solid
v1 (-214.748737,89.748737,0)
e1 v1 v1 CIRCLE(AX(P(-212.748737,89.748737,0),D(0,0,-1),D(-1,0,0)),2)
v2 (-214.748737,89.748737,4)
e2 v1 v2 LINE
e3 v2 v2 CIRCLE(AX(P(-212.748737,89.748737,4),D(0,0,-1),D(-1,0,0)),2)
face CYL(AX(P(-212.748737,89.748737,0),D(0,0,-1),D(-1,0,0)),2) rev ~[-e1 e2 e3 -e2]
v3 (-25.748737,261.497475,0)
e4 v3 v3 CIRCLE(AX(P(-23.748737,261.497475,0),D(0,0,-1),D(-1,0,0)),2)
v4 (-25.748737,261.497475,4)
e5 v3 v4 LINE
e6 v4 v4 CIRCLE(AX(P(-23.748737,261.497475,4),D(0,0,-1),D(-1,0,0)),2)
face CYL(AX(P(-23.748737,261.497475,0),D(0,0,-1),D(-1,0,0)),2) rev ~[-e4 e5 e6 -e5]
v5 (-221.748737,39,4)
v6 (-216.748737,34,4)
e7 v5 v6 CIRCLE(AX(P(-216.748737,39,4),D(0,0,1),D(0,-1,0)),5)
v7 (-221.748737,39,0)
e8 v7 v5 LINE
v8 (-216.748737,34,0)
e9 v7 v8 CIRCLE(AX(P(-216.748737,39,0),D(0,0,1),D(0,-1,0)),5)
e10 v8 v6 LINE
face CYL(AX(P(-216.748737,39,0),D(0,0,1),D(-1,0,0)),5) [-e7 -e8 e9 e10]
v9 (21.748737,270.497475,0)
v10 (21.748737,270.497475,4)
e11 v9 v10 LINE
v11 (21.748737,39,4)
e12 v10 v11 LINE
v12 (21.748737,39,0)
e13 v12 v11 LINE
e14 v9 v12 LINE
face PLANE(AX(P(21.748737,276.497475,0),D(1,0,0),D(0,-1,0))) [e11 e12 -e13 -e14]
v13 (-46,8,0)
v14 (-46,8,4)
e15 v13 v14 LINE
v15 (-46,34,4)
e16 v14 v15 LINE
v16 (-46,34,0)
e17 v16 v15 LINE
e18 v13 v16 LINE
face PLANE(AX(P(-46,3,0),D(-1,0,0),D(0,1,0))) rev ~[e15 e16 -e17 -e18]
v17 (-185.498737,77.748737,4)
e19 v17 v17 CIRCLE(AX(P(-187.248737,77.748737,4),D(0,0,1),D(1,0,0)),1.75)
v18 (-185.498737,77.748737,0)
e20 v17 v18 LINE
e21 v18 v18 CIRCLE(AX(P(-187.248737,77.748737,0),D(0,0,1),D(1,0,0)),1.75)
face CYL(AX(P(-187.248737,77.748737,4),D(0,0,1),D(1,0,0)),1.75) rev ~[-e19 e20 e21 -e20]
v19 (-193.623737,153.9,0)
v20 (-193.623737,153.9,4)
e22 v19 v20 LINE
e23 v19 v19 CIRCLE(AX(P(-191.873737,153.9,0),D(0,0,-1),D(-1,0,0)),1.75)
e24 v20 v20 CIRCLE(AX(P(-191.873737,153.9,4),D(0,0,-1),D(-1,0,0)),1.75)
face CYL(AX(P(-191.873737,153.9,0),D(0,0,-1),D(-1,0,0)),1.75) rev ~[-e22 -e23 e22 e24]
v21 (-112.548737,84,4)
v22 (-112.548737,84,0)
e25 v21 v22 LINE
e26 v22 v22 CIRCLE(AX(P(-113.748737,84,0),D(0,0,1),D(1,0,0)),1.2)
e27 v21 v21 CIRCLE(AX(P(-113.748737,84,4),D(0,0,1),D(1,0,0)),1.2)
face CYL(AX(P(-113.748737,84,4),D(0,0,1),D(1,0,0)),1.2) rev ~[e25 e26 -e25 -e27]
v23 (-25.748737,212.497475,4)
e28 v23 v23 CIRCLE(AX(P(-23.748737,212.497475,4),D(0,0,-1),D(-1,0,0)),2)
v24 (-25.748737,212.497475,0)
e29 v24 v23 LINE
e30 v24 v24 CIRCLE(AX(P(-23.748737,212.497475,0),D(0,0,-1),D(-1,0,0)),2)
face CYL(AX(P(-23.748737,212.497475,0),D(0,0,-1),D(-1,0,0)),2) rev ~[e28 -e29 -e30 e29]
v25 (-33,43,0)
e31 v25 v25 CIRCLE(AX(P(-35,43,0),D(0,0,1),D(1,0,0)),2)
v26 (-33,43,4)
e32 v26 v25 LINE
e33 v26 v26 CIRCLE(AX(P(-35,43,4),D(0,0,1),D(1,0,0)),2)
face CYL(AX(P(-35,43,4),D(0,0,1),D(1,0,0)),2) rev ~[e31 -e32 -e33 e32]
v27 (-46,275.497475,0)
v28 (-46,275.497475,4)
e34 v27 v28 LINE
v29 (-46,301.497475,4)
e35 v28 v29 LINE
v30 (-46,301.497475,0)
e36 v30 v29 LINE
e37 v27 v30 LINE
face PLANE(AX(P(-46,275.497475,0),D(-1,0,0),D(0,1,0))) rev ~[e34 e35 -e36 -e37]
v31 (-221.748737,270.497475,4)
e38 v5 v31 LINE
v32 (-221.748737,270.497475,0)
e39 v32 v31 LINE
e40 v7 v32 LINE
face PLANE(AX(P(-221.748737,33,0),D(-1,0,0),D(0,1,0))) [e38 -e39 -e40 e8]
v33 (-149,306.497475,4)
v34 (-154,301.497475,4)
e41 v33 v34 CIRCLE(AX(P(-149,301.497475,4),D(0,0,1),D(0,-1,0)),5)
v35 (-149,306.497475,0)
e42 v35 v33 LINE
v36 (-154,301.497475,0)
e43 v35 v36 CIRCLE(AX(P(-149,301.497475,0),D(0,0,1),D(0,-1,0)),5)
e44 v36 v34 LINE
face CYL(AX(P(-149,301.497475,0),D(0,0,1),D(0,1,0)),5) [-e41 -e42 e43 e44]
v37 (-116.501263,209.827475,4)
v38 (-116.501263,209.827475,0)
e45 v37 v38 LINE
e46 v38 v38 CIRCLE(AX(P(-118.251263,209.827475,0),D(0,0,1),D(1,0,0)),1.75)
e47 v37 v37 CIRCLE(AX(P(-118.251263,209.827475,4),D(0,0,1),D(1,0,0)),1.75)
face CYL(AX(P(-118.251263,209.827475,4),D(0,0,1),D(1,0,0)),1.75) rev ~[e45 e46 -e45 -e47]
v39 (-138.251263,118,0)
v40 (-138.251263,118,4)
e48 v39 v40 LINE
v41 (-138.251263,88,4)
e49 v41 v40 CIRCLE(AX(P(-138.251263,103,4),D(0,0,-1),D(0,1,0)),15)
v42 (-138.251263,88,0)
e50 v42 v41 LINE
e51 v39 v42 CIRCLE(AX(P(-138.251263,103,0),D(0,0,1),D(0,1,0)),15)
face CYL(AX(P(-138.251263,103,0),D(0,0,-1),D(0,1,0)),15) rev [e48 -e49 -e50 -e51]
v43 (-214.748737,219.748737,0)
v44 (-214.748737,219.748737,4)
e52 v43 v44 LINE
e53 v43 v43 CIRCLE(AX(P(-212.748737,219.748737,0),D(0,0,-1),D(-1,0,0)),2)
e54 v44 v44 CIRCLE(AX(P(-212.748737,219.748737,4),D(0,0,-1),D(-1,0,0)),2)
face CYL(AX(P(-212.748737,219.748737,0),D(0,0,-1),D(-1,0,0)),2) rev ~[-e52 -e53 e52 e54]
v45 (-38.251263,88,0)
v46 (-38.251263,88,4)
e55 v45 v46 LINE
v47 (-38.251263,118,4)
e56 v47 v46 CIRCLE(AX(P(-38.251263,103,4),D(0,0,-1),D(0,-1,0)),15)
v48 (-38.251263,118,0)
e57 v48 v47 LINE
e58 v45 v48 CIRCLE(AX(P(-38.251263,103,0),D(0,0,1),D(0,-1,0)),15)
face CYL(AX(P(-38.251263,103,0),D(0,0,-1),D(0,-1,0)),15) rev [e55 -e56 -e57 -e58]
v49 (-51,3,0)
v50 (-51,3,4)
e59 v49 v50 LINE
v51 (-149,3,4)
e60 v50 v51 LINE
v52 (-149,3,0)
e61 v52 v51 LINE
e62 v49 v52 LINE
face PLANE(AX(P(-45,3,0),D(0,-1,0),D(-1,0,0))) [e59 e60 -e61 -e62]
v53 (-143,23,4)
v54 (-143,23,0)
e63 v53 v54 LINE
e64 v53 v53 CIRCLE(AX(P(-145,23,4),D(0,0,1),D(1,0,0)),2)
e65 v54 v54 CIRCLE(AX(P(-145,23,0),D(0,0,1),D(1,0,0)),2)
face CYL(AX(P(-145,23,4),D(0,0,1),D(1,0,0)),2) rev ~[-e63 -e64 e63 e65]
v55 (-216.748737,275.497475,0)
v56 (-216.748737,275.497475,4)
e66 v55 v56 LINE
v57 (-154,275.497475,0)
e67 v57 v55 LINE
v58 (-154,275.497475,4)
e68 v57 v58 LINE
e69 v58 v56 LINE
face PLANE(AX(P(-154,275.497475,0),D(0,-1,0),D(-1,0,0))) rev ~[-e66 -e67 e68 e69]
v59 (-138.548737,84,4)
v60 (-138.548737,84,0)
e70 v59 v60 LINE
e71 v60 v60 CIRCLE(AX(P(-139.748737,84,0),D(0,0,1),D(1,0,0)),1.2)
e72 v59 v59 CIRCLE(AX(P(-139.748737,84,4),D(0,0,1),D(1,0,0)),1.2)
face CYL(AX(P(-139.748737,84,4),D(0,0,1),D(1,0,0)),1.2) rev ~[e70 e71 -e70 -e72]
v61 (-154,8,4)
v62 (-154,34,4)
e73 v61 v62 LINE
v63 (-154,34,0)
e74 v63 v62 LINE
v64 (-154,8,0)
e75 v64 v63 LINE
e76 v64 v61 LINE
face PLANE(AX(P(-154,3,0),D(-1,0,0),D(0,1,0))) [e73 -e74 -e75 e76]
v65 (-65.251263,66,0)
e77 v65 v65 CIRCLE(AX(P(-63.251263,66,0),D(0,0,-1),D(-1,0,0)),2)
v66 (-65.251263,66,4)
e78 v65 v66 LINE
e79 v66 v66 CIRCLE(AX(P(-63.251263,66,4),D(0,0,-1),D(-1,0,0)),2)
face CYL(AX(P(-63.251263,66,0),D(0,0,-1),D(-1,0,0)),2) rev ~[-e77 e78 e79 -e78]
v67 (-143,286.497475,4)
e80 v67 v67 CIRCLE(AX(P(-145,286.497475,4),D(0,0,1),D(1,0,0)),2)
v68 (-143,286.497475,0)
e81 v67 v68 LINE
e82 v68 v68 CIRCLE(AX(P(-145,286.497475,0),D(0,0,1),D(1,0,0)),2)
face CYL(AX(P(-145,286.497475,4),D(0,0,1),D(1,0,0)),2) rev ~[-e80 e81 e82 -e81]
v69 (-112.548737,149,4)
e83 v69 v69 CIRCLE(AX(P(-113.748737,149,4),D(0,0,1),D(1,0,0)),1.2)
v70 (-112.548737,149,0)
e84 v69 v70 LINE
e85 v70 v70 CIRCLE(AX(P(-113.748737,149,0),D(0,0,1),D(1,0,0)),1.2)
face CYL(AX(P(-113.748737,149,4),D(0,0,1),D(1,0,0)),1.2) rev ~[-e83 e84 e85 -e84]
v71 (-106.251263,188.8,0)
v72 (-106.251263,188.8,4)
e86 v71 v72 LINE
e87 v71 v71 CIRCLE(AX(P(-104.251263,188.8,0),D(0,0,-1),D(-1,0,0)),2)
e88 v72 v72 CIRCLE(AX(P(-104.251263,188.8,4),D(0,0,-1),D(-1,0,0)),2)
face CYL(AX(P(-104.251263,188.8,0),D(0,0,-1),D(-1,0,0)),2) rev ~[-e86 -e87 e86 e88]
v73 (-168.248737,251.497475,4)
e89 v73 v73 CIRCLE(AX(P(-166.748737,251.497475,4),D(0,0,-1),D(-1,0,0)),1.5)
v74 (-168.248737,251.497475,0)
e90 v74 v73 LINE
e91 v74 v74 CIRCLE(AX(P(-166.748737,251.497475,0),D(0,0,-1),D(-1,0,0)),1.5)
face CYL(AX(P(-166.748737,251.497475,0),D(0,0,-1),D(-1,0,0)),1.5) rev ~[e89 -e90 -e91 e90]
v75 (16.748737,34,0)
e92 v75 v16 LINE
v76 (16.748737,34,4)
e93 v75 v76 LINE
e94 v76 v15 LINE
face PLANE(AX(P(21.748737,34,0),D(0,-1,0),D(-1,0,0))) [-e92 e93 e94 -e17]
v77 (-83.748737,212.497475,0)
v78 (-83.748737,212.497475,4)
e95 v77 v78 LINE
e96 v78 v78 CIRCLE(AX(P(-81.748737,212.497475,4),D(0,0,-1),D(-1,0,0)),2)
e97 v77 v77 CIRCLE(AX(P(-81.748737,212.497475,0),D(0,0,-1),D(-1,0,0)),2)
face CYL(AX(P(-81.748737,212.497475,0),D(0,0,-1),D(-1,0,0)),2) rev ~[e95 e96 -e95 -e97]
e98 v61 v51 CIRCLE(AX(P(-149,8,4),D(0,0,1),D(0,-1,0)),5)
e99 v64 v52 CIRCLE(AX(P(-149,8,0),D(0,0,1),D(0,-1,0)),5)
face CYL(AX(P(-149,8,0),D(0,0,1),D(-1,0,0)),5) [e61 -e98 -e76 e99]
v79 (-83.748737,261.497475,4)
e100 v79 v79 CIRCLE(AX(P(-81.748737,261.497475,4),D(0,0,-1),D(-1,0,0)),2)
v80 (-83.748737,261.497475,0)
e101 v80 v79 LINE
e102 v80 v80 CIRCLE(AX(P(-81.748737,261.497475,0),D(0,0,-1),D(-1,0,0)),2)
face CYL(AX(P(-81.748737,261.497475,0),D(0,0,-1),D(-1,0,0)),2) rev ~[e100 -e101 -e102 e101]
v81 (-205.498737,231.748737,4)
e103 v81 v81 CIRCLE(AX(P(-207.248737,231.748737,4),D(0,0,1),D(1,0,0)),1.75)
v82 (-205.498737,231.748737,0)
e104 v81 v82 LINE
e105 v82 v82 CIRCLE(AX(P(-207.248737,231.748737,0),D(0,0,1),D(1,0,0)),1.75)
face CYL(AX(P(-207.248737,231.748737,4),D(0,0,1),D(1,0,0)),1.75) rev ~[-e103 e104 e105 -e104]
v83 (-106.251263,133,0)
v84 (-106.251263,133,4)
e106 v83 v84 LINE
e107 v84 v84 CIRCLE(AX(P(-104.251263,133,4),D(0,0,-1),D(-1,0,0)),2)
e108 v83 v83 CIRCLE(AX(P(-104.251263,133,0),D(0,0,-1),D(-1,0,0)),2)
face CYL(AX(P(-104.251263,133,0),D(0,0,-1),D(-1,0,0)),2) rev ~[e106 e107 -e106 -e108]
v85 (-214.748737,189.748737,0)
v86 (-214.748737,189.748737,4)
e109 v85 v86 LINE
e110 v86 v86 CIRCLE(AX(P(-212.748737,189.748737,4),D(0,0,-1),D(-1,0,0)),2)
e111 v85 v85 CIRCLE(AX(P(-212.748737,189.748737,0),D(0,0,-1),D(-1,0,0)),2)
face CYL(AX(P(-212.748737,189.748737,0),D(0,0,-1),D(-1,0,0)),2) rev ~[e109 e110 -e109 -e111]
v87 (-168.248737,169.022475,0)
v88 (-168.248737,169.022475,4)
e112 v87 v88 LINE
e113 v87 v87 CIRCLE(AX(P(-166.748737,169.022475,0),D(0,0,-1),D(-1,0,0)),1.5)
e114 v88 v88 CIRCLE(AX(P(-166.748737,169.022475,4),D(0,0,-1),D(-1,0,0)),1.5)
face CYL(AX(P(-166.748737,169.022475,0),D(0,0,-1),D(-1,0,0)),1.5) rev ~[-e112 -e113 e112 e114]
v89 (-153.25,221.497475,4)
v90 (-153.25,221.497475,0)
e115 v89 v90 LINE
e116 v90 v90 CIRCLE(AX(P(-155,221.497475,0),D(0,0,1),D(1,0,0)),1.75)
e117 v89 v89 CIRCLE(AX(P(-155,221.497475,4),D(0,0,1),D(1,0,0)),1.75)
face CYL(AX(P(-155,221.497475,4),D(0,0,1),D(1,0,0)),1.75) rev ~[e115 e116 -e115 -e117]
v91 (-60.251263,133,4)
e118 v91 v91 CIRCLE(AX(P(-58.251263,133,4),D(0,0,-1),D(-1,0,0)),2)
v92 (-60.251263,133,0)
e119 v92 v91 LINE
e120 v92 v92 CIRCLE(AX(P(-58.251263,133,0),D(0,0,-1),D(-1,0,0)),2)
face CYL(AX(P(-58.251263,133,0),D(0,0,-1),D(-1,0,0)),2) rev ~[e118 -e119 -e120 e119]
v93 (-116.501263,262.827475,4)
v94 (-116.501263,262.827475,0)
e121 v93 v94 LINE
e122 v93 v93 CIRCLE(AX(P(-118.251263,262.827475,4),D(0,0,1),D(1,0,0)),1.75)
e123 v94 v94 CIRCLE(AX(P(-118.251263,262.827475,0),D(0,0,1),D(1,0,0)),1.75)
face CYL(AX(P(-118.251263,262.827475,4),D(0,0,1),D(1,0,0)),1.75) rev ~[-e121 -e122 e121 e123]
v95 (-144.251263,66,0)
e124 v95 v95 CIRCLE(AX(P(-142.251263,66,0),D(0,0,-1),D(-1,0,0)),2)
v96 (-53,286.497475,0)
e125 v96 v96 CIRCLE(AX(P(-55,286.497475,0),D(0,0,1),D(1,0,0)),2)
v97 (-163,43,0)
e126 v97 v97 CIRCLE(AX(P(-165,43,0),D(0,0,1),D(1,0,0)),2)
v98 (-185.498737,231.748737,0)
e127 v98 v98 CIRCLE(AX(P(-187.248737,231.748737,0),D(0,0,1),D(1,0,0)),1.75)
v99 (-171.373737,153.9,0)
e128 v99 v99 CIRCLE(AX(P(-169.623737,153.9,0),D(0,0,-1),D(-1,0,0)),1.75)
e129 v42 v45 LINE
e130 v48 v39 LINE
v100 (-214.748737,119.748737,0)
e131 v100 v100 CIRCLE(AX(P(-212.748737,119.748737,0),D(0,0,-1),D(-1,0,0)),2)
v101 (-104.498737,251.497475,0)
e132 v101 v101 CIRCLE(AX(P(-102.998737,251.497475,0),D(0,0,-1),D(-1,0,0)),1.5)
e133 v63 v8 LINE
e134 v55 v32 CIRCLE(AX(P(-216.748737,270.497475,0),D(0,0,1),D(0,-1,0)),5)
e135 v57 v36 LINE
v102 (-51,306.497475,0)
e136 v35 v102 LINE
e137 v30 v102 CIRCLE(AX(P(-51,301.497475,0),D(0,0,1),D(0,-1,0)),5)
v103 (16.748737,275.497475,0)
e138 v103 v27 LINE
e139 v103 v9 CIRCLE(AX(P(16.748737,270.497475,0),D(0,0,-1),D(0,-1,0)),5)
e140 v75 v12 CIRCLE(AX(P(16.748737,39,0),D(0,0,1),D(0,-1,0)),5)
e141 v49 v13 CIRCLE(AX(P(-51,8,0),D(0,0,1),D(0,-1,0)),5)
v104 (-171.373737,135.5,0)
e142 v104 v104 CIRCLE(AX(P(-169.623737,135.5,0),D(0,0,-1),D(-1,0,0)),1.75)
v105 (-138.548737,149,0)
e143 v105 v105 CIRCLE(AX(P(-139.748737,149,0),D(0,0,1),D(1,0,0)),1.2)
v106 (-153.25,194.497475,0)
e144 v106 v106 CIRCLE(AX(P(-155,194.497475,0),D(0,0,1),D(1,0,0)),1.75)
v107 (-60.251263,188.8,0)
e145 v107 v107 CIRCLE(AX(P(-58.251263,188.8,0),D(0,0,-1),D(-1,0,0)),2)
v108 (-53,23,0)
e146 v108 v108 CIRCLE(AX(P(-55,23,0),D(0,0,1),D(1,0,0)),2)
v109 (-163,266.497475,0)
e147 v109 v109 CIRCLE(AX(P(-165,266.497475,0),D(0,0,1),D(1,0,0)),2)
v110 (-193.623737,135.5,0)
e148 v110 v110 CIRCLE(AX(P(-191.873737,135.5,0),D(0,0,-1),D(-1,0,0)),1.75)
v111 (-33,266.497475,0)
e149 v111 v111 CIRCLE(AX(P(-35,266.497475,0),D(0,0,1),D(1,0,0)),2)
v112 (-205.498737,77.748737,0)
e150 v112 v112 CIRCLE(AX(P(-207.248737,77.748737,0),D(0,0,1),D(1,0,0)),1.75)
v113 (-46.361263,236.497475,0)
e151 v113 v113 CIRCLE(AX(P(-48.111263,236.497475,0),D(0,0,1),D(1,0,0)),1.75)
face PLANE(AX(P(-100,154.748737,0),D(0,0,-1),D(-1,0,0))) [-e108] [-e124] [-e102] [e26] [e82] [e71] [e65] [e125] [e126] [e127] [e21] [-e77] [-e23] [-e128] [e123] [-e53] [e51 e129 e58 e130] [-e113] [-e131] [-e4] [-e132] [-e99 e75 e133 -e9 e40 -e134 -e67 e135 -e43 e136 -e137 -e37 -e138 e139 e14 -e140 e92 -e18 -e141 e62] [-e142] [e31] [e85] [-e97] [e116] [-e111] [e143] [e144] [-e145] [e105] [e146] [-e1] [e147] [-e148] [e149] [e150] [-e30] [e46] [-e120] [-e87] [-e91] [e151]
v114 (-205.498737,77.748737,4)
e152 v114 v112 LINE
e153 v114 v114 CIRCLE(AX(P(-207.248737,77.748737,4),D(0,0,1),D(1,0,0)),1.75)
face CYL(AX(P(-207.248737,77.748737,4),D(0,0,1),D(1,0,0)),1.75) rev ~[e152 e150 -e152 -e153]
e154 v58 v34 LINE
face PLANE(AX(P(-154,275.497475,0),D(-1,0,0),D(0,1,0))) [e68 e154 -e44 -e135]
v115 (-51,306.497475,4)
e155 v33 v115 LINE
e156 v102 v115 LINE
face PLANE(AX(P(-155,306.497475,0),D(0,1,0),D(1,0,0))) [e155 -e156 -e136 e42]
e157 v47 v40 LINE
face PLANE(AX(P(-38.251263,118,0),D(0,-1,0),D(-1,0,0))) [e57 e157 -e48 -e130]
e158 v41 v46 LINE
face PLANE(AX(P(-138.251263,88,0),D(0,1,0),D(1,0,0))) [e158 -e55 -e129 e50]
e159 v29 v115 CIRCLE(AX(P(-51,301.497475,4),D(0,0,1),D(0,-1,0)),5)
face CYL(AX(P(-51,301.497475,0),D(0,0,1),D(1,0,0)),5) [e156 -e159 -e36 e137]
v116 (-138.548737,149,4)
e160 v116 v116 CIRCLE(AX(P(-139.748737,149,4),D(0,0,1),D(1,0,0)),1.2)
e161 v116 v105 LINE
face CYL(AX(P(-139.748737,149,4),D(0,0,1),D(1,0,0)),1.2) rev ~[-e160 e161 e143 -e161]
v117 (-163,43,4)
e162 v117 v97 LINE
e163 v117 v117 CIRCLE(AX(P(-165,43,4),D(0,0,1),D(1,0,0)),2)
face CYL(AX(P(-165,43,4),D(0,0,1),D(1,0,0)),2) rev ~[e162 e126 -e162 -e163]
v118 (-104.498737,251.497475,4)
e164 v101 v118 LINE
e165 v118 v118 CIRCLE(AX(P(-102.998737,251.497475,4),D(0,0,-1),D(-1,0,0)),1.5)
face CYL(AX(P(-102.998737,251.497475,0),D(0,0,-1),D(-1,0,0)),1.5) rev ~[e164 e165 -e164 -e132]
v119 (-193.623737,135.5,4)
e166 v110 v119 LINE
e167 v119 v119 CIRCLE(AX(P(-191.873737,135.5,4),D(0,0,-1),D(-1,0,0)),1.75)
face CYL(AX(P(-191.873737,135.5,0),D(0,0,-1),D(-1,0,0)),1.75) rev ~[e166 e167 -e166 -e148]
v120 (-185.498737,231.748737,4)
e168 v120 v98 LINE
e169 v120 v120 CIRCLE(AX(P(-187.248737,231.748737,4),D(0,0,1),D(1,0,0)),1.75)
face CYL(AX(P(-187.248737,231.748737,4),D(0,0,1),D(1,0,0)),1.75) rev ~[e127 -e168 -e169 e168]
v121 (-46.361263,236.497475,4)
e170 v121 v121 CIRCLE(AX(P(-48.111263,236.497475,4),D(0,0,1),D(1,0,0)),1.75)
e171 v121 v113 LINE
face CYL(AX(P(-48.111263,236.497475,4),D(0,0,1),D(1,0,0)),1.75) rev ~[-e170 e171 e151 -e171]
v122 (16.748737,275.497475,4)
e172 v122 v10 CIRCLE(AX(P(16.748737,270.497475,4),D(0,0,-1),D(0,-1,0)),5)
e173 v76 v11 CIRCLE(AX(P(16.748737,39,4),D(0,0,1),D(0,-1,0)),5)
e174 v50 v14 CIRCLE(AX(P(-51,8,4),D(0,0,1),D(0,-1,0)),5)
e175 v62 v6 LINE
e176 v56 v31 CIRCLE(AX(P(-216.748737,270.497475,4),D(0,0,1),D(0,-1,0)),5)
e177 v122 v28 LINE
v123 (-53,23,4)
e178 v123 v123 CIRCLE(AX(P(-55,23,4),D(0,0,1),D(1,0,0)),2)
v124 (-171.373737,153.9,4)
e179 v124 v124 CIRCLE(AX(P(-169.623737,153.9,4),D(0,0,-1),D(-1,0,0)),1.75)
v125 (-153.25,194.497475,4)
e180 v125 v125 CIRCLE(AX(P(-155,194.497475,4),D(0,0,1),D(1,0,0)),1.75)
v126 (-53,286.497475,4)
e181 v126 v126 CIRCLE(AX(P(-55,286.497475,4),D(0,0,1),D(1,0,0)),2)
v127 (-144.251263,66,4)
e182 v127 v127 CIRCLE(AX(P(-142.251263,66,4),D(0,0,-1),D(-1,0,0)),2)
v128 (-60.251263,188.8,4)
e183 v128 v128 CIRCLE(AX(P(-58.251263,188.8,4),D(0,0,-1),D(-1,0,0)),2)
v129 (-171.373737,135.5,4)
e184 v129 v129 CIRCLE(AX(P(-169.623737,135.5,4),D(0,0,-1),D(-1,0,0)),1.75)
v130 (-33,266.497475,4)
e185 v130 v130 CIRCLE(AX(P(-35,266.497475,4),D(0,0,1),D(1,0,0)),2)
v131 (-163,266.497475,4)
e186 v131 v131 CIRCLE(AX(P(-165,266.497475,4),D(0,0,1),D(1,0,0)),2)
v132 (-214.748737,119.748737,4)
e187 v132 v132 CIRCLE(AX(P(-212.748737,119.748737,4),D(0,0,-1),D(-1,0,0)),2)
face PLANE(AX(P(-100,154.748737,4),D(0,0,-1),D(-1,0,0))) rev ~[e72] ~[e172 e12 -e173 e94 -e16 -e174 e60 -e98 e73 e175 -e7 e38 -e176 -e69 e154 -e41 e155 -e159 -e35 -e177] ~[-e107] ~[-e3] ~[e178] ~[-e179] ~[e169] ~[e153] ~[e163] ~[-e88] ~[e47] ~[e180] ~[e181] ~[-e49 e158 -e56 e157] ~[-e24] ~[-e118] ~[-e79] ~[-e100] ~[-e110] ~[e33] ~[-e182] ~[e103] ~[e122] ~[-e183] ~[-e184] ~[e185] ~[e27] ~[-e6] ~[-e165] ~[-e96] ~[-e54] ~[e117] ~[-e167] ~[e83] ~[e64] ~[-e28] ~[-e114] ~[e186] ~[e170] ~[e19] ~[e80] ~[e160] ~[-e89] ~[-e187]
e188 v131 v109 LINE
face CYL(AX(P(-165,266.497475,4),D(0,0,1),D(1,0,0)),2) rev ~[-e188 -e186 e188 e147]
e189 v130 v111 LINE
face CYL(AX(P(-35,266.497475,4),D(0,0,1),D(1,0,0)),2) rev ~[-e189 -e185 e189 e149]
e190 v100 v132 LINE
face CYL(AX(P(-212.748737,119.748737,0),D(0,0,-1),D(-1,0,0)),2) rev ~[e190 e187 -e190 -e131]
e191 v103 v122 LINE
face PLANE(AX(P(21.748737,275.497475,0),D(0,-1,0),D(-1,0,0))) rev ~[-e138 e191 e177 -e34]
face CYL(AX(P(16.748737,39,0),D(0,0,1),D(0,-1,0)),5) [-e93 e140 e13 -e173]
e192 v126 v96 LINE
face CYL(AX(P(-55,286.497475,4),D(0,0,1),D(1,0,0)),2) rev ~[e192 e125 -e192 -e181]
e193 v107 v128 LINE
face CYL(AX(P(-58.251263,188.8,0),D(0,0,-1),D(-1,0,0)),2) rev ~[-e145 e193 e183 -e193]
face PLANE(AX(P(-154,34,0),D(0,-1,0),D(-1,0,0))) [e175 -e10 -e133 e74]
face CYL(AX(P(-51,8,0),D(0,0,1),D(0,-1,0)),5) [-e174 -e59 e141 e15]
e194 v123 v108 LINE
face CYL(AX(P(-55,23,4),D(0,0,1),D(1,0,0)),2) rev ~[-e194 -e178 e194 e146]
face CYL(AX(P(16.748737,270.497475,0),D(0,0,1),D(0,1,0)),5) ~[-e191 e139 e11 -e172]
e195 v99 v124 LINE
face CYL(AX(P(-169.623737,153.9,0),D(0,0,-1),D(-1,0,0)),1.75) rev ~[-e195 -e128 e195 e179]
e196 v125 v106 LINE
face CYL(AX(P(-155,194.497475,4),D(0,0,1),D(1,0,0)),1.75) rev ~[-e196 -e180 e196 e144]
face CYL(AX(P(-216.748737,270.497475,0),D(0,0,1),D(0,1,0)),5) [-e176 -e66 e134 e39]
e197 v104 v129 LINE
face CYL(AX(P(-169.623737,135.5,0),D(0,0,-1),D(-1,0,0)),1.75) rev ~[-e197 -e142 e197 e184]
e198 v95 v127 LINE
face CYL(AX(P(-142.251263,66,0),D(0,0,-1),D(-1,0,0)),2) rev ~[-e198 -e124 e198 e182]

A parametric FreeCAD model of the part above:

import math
import FreeCAD as App
import Part
import Sketcher
from FreeCAD import Vector
Q = App.Units.Quantity


def edges_at(feature, points):
    """Names of the edges that pass closest to the given points."""
    edges = feature.Shape.Edges
    near = lambda p: min(range(len(edges)), key=lambda i: edges[i].distToShape(Part.Vertex(*p))[0])
    return sorted({f"Edge{near(p) + 1}" for p in points})


def add_polygon(sketch, points):
    """Adds a closed chain of lines whose ends are joined by coincident constraints."""
    first, n = sketch.GeometryCount, len(points)
    for a, b in zip(points, points[1:] + points[:1]):
        sketch.addGeometry(Part.LineSegment(App.Vector(*a, 0), App.Vector(*b, 0)), False)
    for i in range(n):
        sketch.addConstraint(Sketcher.Constraint("Coincident", first + i, 2, first + (i + 1) % n, 1))

doc = App.newDocument("Part")
params = doc.addObject("Spreadsheet::Sheet", "Params")
for row, (alias, value) in enumerate([
    ("sketch1_width", "200 mm"),
    ("sketch1_height", "260 mm"),
    ("sketch1_length", "35 mm"),
    ("pad1_length", "4 mm"),
    ("fillet_radius", "3 mm"),
    ("sketch2_width", "110 mm"),
    ("sketch2_height", "30 mm"),
    ("sketch3_diameter", "3.5 mm"),
    ("sketch4_diameter", "4 mm"),
    ("sketch5_diameter", "4 mm"),
    ("sketch6_diameter", "3 mm"),
    ("sketch7_diameter", "4 mm"),
    ("sketch8_diameter", "3.5 mm"),
    ("sketch9_diameter", "4 mm"),
    ("sketch10_radius", "15 mm"),
    ("sketch10_width", "100 mm"),
    ("sketch11_diameter", "3.5 mm"),
    ("sketch12_diameter", "2.4 mm"),
    ("sketch13_diameter", "3.5 mm"),
    ("pocket12_length", "5 mm"),
    ("sketch14_diameter", "4 mm"),
    ("sketch15_height", "31 mm"),
    ("fillet2_radius", "5 mm"),
], start=1):
    params.set(f"A{row}", alias)
    params.set(f"B{row}", "=" + value)
    params.setAlias(f"B{row}", alias)

body = doc.addObject("PartDesign::Body", "Body")

sketch1 = body.newObject("Sketcher::SketchObject", "Sketch")
sketch1.AttachmentSupport = (doc.getObject("XY_Plane"), [""])
sketch1.MapMode = "FlatFace"
add_polygon(sketch1, [(-200, 0), (0, 0), (25, 25), (25, 285), (0, 309), (-200, 309), (-225, 285), (-225, 25)])
sketch1.addConstraint(Sketcher.Constraint("Horizontal", 0))
sketch1.addConstraint(Sketcher.Constraint("Vertical", 2))
sketch1.addConstraint(Sketcher.Constraint("Horizontal", 4))
sketch1.addConstraint(Sketcher.Constraint("Vertical", 6))
sketch1.addConstraint(Sketcher.Constraint("Coincident", 0, 2, -1, 1))
sketch1.addConstraint(Sketcher.Constraint("PointOnObject", 3, 2, -2))
sketch1.addConstraint(Sketcher.Constraint("Perpendicular", 1, 3))
sketch1.addConstraint(Sketcher.Constraint("Perpendicular", 3, 5))
sketch1.addConstraint(Sketcher.Constraint("Perpendicular", 5, 7))
sketch1.addConstraint(Sketcher.Constraint("Horizontal", 2, 2, 5, 2))
sketch1.addConstraint(Sketcher.Constraint("Horizontal", 1, 2, 6, 2))
sketch1.addConstraint(Sketcher.Constraint("Vertical", 4, 2, 7, 2))
sketch1.addConstraint(Sketcher.Constraint("DistanceX", 0, 1, 0, 2, Q("200 mm")))
sketch1.addConstraint(Sketcher.Constraint("DistanceY", 2, 1, 2, 2, Q("260 mm")))
sketch1.addConstraint(Sketcher.Constraint("Distance", 1, Q("35 mm")))
sketch1.setExpression("Constraints[20]", "Params.sketch1_width")
sketch1.setExpression("Constraints[21]", "Params.sketch1_height")
sketch1.setExpression("Constraints[22]", "Params.sketch1_length")
pad1 = body.newObject("PartDesign::Pad", "Pad")
pad1.Profile = sketch1
pad1.setExpression("Length", "Params.pad1_length")
doc.recompute()

fillet = body.newObject("PartDesign::Fillet", "Fillet")
fillet.Base = (pad1, edges_at(pad1, [
    (0, 0, 2),
    (-200, 0, 2),
    (-224.749, 24.749, 2),
    (-224.749, 284.749, 2),
    (-200, 309.497, 2),
    (0, 309.497, 2),
    (24.749, 284.749, 2),
    (24.749, 24.749, 2),
]))
fillet.setExpression("Radius", "Params.fillet_radius")

sketch2 = body.newObject("Sketcher::SketchObject", "Sketch001")
sketch2.AttachmentSupport = (doc.getObject("XY_Plane"), [""])
sketch2.MapMode = "FlatFace"
add_polygon(sketch2, [(25, 0), (-225, 0), (-225, 309), (25, 309)])
add_polygon(sketch2, [(-45, 33), (22, 33), (22, 276), (-45, 276), (-45, 306), (-155, 306), (-155, 276), (-222, 276), (-222, 33), (-155, 33), (-155, 3), (-45, 3)])
sketch2.addConstraint(Sketcher.Constraint("Horizontal", 0))
sketch2.addConstraint(Sketcher.Constraint("Vertical", 1))
sketch2.addConstraint(Sketcher.Constraint("Horizontal", 2))
sketch2.addConstraint(Sketcher.Constraint("Vertical", 3))
sketch2.addConstraint(Sketcher.Constraint("Horizontal", 4))
sketch2.addConstraint(Sketcher.Constraint("Vertical", 5))
sketch2.addConstraint(Sketcher.Constraint("Horizontal", 6))
sketch2.addConstraint(Sketcher.Constraint("Vertical", 7))
sketch2.addConstraint(Sketcher.Constraint("Horizontal", 8))
sketch2.addConstraint(Sketcher.Constraint("Vertical", 9))
sketch2.addConstraint(Sketcher.Constraint("Horizontal", 10))
sketch2.addConstraint(Sketcher.Constraint("Vertical", 11))
sketch2.addConstraint(Sketcher.Constraint("Horizontal", 12))
sketch2.addConstraint(Sketcher.Constraint("Vertical", 13))
sketch2.addConstraint(Sketcher.Constraint("Horizontal", 14))
sketch2.addConstraint(Sketcher.Constraint("Vertical", 15))
sketch2.addConstraint(Sketcher.Constraint("PointOnObject", 0, 2, -1))
sketch2.addConstraint(Sketcher.Constraint("Horizontal", 6, 2, 9, 2))
sketch2.addConstraint(Sketcher.Constraint("Horizontal", 4, 2, 11, 2))
sketch2.addConstraint(Sketcher.Constraint("Vertical", 9, 2, 12, 2))
sketch2.addConstraint(Sketcher.Constraint("Vertical", 7, 2, 14, 2))
sketch2.addConstraint(Sketcher.Constraint("Equal", 6, 10))
sketch2.addConstraint(Sketcher.Constraint("Equal", 9, 13))
sketch2.addConstraint(Sketcher.Constraint("DistanceX", 8, 2, 8, 1, Q("110 mm")))
sketch2.addConstraint(Sketcher.Constraint("DistanceY", 7, 1, 7, 2, Q("30 mm")))
sketch2.addConstraint(Sketcher.Constraint("DistanceY", -1, 1, 4, 2, Q("33 mm")))
sketch2.addConstraint(Sketcher.Constraint("DistanceX", 6, 2, -1, 1, Q("45 mm")))
sketch2.addConstraint(Sketcher.Constraint("DistanceX", 4, 2, 3, 2, Q("3 mm")))
sketch2.addConstraint(Sketcher.Constraint("DistanceY", 5, 2, 2, 2, Q("33 mm")))
sketch2.addConstraint(Sketcher.Constraint("DistanceX", 1, 2, 10, 2, Q("3 mm")))
sketch2.addConstraint(Sketcher.Constraint("DistanceX", 0, 2, 0, 1, Q("249.497475 mm")))
sketch2.addConstraint(Sketcher.Constraint("DistanceY", 1, 1, 1, 2, Q("309.497475 mm")))
sketch2.setExpression("Constraints[39]", "Params.sketch2_width")
sketch2.setExpression("Constraints[40]", "Params.sketch2_height")
pocket1 = body.newObject("PartDesign::Pocket", "Pocket")
pocket1.Profile = sketch2
pocket1.Type = "ThroughAll"
pocket1.Reversed = True

sketch3 = body.newObject("Sketcher::SketchObject", "Sketch002")
sketch3.AttachmentSupport = (doc.getObject("XY_Plane"), [""])
sketch3.MapMode = "FlatFace"
sketch3.AttachmentOffset = App.Placement(Vector(0, 0, 4), App.Rotation())
sketch3.addGeometry(Part.Circle(Vector(-207.2, 231.7, 0), Vector(0, 0, 1), 1.8), False)
sketch3.addGeometry(Part.Circle(Vector(-187.2, 231.7, 0), Vector(0, 0, 1), 1.8), False)
sketch3.addGeometry(Part.Circle(Vector(-207.2, 77.7, 0), Vector(0, 0, 1), 1.8), False)
sketch3.addGeometry(Part.Circle(Vector(-187.2, 77.7, 0), Vector(0, 0, 1), 1.8), False)
sketch3.addConstraint(Sketcher.Constraint("Equal", 0, 1))
sketch3.addConstraint(Sketcher.Constraint("Equal", 1, 2))
sketch3.addConstraint(Sketcher.Constraint("Equal", 2, 3))
sketch3.addConstraint(Sketcher.Constraint("Horizontal", 0, 3, 1, 3))
sketch3.addConstraint(Sketcher.Constraint("Horizontal", 2, 3, 3, 3))
sketch3.addConstraint(Sketcher.Constraint("Vertical", 0, 3, 2, 3))
sketch3.addConstraint(Sketcher.Constraint("Vertical", 1, 3, 3, 3))
sketch3.addConstraint(Sketcher.Constraint("Diameter", 0, Q("3.5 mm")))
sketch3.addConstraint(Sketcher.Constraint("DistanceX", 0, 3, 1, 3, Q("20 mm")))
sketch3.addConstraint(Sketcher.Constraint("DistanceY", 2, 3, 0, 3, Q("154 mm")))
sketch3.addConstraint(Sketcher.Constraint("DistanceX", 0, 3, -1, 1, Q("207.248737 mm")))
sketch3.addConstraint(Sketcher.Constraint("DistanceY", -1, 1, 0, 3, Q("231.748737 mm")))
sketch3.setExpression("Constraints[7]", "Params.sketch3_diameter")
pocket2 = body.newObject("PartDesign::Pocket", "Pocket001")
pocket2.Profile = sketch3
pocket2.Type = "ThroughAll"

sketch4 = body.newObject("Sketcher::SketchObject", "Sketch003")
sketch4.AttachmentSupport = (doc.getObject("XY_Plane"), [""])
sketch4.MapMode = "FlatFace"
sketch4.addGeometry(Part.Circle(Vector(-212.7, 189.7, 0), Vector(0, 0, 1), 2), False)
sketch4.addGeometry(Part.Circle(Vector(-212.7, 219.7, 0), Vector(0, 0, 1), 2), False)
sketch4.addGeometry(Part.Circle(Vector(-212.7, 89.7, 0), Vector(0, 0, 1), 2), False)
sketch4.addGeometry(Part.Circle(Vector(-212.7, 119.7, 0), Vector(0, 0, 1), 2), False)
sketch4.addConstraint(Sketcher.Constraint("Equal", 0, 1))
sketch4.addConstraint(Sketcher.Constraint("Equal", 1, 2))
sketch4.addConstraint(Sketcher.Constraint("Equal", 2, 3))
sketch4.addConstraint(Sketcher.Constraint("Vertical", 0, 3, 1, 3))
sketch4.addConstraint(Sketcher.Constraint("Vertical", 1, 3, 2, 3))
sketch4.addConstraint(Sketcher.Constraint("Vertical", 2, 3, 3, 3))
sketch4.addConstraint(Sketcher.Constraint("Diameter", 0, Q("4 mm")))
sketch4.addConstraint(Sketcher.Constraint("DistanceY", 0, 3, 1, 3, Q("30 mm")))
sketch4.addConstraint(Sketcher.Constraint("DistanceY", 2, 3, 0, 3, Q("100 mm")))
sketch4.addConstraint(Sketcher.Constraint("DistanceY", 2, 3, 3, 3, Q("30 mm")))
sketch4.addConstraint(Sketcher.Constraint("DistanceX", 0, 3, -1, 1, Q("212.748737 mm")))
sketch4.addConstraint(Sketcher.Constraint("DistanceY", -1, 1, 0, 3, Q("189.748737 mm")))
sketch4.setExpression("Constraints[6]", "Params.sketch4_diameter")
pocket3 = body.newObject("PartDesign::Pocket", "Pocket002")
pocket3.Profile = sketch4
pocket3.Type = "ThroughAll"
pocket3.Reversed = True

sketch5 = body.newObject("Sketcher::SketchObject", "Sketch004")
sketch5.AttachmentSupport = (doc.getObject("XY_Plane"), [""])
sketch5.MapMode = "FlatFace"
sketch5.addGeometry(Part.Circle(Vector(-142.3, 66, 0), Vector(0, 0, 1), 2), False)
sketch5.addGeometry(Part.Circle(Vector(-63.3, 66, 0), Vector(0, 0, 1), 2), False)
sketch5.addConstraint(Sketcher.Constraint("Equal", 0, 1))
sketch5.addConstraint(Sketcher.Constraint("Horizontal", 0, 3, 1, 3))
sketch5.addConstraint(Sketcher.Constraint("Diameter", 0, Q("4 mm")))
sketch5.addConstraint(Sketcher.Constraint("DistanceY", -1, 1, 0, 3, Q("66 mm")))
sketch5.addConstraint(Sketcher.Constraint("DistanceX", 0, 3, 1, 3, Q("79 mm")))
sketch5.addConstraint(Sketcher.Constraint("DistanceX", 0, 3, -1, 1, Q("142.251263 mm")))
sketch5.setExpression("Constraints[2]", "Params.sketch5_diameter")
pocket4 = body.newObject("PartDesign::Pocket", "Pocket003")
pocket4.Profile = sketch5
pocket4.Type = "ThroughAll"
pocket4.Reversed = True

sketch6 = body.newObject("Sketcher::SketchObject", "Sketch005")
sketch6.AttachmentSupport = (doc.getObject("XY_Plane"), [""])
sketch6.MapMode = "FlatFace"
sketch6.addGeometry(Part.Circle(Vector(-166.7, 251.5, 0), Vector(0, 0, 1), 1.5), False)
sketch6.addGeometry(Part.Circle(Vector(-103, 251.5, 0), Vector(0, 0, 1), 1.5), False)
sketch6.addGeometry(Part.Circle(Vector(-166.7, 169, 0), Vector(0, 0, 1), 1.5), False)
sketch6.addConstraint(Sketcher.Constraint("Equal", 0, 1))
sketch6.addConstraint(Sketcher.Constraint("Equal", 1, 2))
sketch6.addConstraint(Sketcher.Constraint("Horizontal", 0, 3, 1, 3))
sketch6.addConstraint(Sketcher.Constraint("Vertical", 0, 3, 2, 3))
sketch6.addConstraint(Sketcher.Constraint("Diameter", 0, Q("3 mm")))
sketch6.addConstraint(Sketcher.Constraint("DistanceX", 0, 3, 1, 3, Q("63.75 mm")))
sketch6.addConstraint(Sketcher.Constraint("DistanceY", 2, 3, 0, 3, Q("82.475 mm")))
sketch6.addConstraint(Sketcher.Constraint("DistanceX", 0, 3, -1, 1, Q("166.748737 mm")))
sketch6.addConstraint(Sketcher.Constraint("DistanceY", -1, 1, 0, 3, Q("251.497475 mm")))
sketch6.setExpression("Constraints[4]", "Params.sketch6_diameter")
pocket5 = body.newObject("PartDesign::Pocket", "Pocket004")
pocket5.Profile = sketch6
pocket5.Type = "ThroughAll"
pocket5.Reversed = True

sketch7 = body.newObject("Sketcher::SketchObject", "Sketch006")
sketch7.AttachmentSupport = (doc.getObject("XY_Plane"), [""])
sketch7.MapMode = "FlatFace"
sketch7.addGeometry(Part.Circle(Vector(-81.7, 212.5, 0), Vector(0, 0, 1), 2), False)
sketch7.addGeometry(Part.Circle(Vector(-23.7, 212.5, 0), Vector(0, 0, 1), 2), False)
sketch7.addGeometry(Part.Circle(Vector(-23.7, 261.5, 0), Vector(0, 0, 1), 2), False)
sketch7.addGeometry(Part.Circle(Vector(-81.7, 261.5, 0), Vector(0, 0, 1), 2), False)
sketch7.addConstraint(Sketcher.Constraint("Equal", 0, 1))
sketch7.addConstraint(Sketcher.Constraint("Equal", 1, 2))
sketch7.addConstraint(Sketcher.Constraint("Equal", 2, 3))
sketch7.addConstraint(Sketcher.Constraint("Horizontal", 0, 3, 1, 3))
sketch7.addConstraint(Sketcher.Constraint("Horizontal", 2, 3, 3, 3))
sketch7.addConstraint(Sketcher.Constraint("Vertical", 1, 3, 2, 3))
sketch7.addConstraint(Sketcher.Constraint("Vertical", 0, 3, 3, 3))
sketch7.addConstraint(Sketcher.Constraint("Diameter", 0, Q("4 mm")))
sketch7.addConstraint(Sketcher.Constraint("DistanceX", 0, 3, 1, 3, Q("58 mm")))
sketch7.addConstraint(Sketcher.Constraint("DistanceY", 1, 3, 2, 3, Q("49 mm")))
sketch7.addConstraint(Sketcher.Constraint("DistanceX", 0, 3, -1, 1, Q("81.748737 mm")))
sketch7.addConstraint(Sketcher.Constraint("DistanceY", -1, 1, 0, 3, Q("212.497475 mm")))
sketch7.setExpression("Constraints[7]", "Params.sketch7_diameter")
pocket6 = body.newObject("PartDesign::Pocket", "Pocket005")
pocket6.Profile = sketch7
pocket6.Type = "ThroughAll"
pocket6.Reversed = True

sketch8 = body.newObject("Sketcher::SketchObject", "Sketch007")
sketch8.AttachmentSupport = (doc.getObject("XY_Plane"), [""])
sketch8.MapMode = "FlatFace"
sketch8.AttachmentOffset = App.Placement(Vector(0, 0, 4), App.Rotation())
sketch8.addGeometry(Part.Circle(Vector(-118.3, 262.8, 0), Vector(0, 0, 1), 1.8), False)
sketch8.addGeometry(Part.Circle(Vector(-118.3, 209.8, 0), Vector(0, 0, 1), 1.8), False)
sketch8.addGeometry(Part.Circle(Vector(-48.1, 236.5, 0), Vector(0, 0, 1), 1.8), False)
sketch8.addConstraint(Sketcher.Constraint("Equal", 0, 1))
sketch8.addConstraint(Sketcher.Constraint("Equal", 1, 2))
sketch8.addConstraint(Sketcher.Constraint("Vertical", 0, 3, 1, 3))
sketch8.addConstraint(Sketcher.Constraint("Diameter", 0, Q("3.5 mm")))
sketch8.addConstraint(Sketcher.Constraint("DistanceY", 1, 3, 0, 3, Q("53 mm")))
sketch8.addConstraint(Sketcher.Constraint("DistanceX", 0, 3, 2, 3, Q("70.14 mm")))
sketch8.addConstraint(Sketcher.Constraint("DistanceY", 2, 3, 0, 3, Q("26.33 mm")))
sketch8.addConstraint(Sketcher.Constraint("DistanceX", 0, 3, -1, 1, Q("118.251263 mm")))
sketch8.addConstraint(Sketcher.Constraint("DistanceY", -1, 1, 0, 3, Q("262.827475 mm")))
sketch8.setExpression("Constraints[3]", "Params.sketch8_diameter")
pocket7 = body.newObject("PartDesign::Pocket", "Pocket006")
pocket7.Profile = sketch8
pocket7.Type = "ThroughAll"

sketch9 = body.newObject("Sketcher::SketchObject", "Sketch008")
sketch9.AttachmentSupport = (doc.getObject("XY_Plane"), [""])
sketch9.MapMode = "FlatFace"
sketch9.addGeometry(Part.Circle(Vector(-104.3, 133, 0), Vector(0, 0, 1), 2), False)
sketch9.addGeometry(Part.Circle(Vector(-58.3, 133, 0), Vector(0, 0, 1), 2), False)
sketch9.addGeometry(Part.Circle(Vector(-58.3, 188.8, 0), Vector(0, 0, 1), 2), False)
sketch9.addGeometry(Part.Circle(Vector(-104.3, 188.8, 0), Vector(0, 0, 1), 2), False)
sketch9.addConstraint(Sketcher.Constraint("Equal", 0, 1))
sketch9.addConstraint(Sketcher.Constraint("Equal", 1, 2))
sketch9.addConstraint(Sketcher.Constraint("Equal", 2, 3))
sketch9.addConstraint(Sketcher.Constraint("Horizontal", 0, 3, 1, 3))
sketch9.addConstraint(Sketcher.Constraint("Horizontal", 2, 3, 3, 3))
sketch9.addConstraint(Sketcher.Constraint("Vertical", 1, 3, 2, 3))
sketch9.addConstraint(Sketcher.Constraint("Vertical", 0, 3, 3, 3))
sketch9.addConstraint(Sketcher.Constraint("Diameter", 0, Q("4 mm")))
sketch9.addConstraint(Sketcher.Constraint("DistanceY", -1, 1, 0, 3, Q("133 mm")))
sketch9.addConstraint(Sketcher.Constraint("DistanceX", 0, 3, 1, 3, Q("46 mm")))
sketch9.addConstraint(Sketcher.Constraint("DistanceY", -1, 1, 2, 3, Q("188.8 mm")))
sketch9.addConstraint(Sketcher.Constraint("DistanceX", 0, 3, -1, 1, Q("104.251263 mm")))
sketch9.setExpression("Constraints[7]", "Params.sketch9_diameter")
pocket8 = body.newObject("PartDesign::Pocket", "Pocket007")
pocket8.Profile = sketch9
pocket8.Type = "ThroughAll"
pocket8.Reversed = True

sketch10 = body.newObject("Sketcher::SketchObject", "Sketch009")
sketch10.AttachmentSupport = (doc.getObject("XY_Plane"), [""])
sketch10.MapMode = "FlatFace"
sketch10.addGeometry(Part.LineSegment(Vector(-38, 88, 0), Vector(-138, 88, 0)), False)
sketch10.addGeometry(Part.ArcOfCircle(Part.Circle(Vector(-138, 103, 0), Vector(0, 0, 1), 15), math.radians(90), math.radians(270)), False)
sketch10.addGeometry(Part.LineSegment(Vector(-138, 118, 0), Vector(-38, 118, 0)), False)
sketch10.addGeometry(Part.ArcOfCircle(Part.Circle(Vector(-38, 103, 0), Vector(0, 0, 1), 15), math.radians(-90), math.radians(90)), False)
sketch10.addConstraint(Sketcher.Constraint("Tangent", 0, 2, 1, 2))
sketch10.addConstraint(Sketcher.Constraint("Tangent", 1, 1, 2, 1))
sketch10.addConstraint(Sketcher.Constraint("Tangent", 2, 2, 3, 2))
sketch10.addConstraint(Sketcher.Constraint("Tangent", 3, 1, 0, 1))
sketch10.addConstraint(Sketcher.Constraint("Horizontal", 0))
sketch10.addConstraint(Sketcher.Constraint("Horizontal", 2))
sketch10.addConstraint(Sketcher.Constraint("Radius", 1, Q("15 mm")))
sketch10.addConstraint(Sketcher.Constraint("DistanceX", 0, 2, 0, 1, Q("100 mm")))
sketch10.addConstraint(Sketcher.Constraint("DistanceY", -1, 1, 1, 3, Q("103 mm")))
sketch10.addConstraint(Sketcher.Constraint("DistanceX", 1, 3, -1, 1, Q("138.251263 mm")))
sketch10.setExpression("Constraints[6]", "Params.sketch10_radius")
sketch10.setExpression("Constraints[7]", "Params.sketch10_width")
pocket9 = body.newObject("PartDesign::Pocket", "Pocket008")
pocket9.Profile = sketch10
pocket9.Type = "ThroughAll"
pocket9.Reversed = True

sketch11 = body.newObject("Sketcher::SketchObject", "Sketch010")
sketch11.AttachmentSupport = (doc.getObject("XY_Plane"), [""])
sketch11.MapMode = "FlatFace"
sketch11.addGeometry(Part.Circle(Vector(-169.6, 153.9, 0), Vector(0, 0, 1), 1.8), False)
sketch11.addGeometry(Part.Circle(Vector(-191.9, 153.9, 0), Vector(0, 0, 1), 1.8), False)
sketch11.addGeometry(Part.Circle(Vector(-169.6, 135.5, 0), Vector(0, 0, 1), 1.8), False)
sketch11.addGeometry(Part.Circle(Vector(-191.9, 135.5, 0), Vector(0, 0, 1), 1.8), False)
sketch11.addConstraint(Sketcher.Constraint("Equal", 0, 1))
sketch11.addConstraint(Sketcher.Constraint("Equal", 1, 2))
sketch11.addConstraint(Sketcher.Constraint("Equal", 2, 3))
sketch11.addConstraint(Sketcher.Constraint("Horizontal", 0, 3, 1, 3))
sketch11.addConstraint(Sketcher.Constraint("Horizontal", 2, 3, 3, 3))
sketch11.addConstraint(Sketcher.Constraint("Vertical", 0, 3, 2, 3))
sketch11.addConstraint(Sketcher.Constraint("Vertical", 1, 3, 3, 3))
sketch11.addConstraint(Sketcher.Constraint("Diameter", 0, Q("3.5 mm")))
sketch11.addConstraint(Sketcher.Constraint("DistanceY", -1, 1, 0, 3, Q("153.9 mm")))
sketch11.addConstraint(Sketcher.Constraint("DistanceY", -1, 1, 2, 3, Q("135.5 mm")))
sketch11.addConstraint(Sketcher.Constraint("DistanceX", 1, 3, 0, 3, Q("22.25 mm")))
sketch11.addConstraint(Sketcher.Constraint("DistanceX", 0, 3, -1, 1, Q("169.623737 mm")))
sketch11.setExpression("Constraints[7]", "Params.sketch11_diameter")
pocket10 = body.newObject("PartDesign::Pocket", "Pocket009")
pocket10.Profile = sketch11
pocket10.Type = "ThroughAll"
pocket10.Reversed = True

sketch12 = body.newObject("Sketcher::SketchObject", "Sketch011")
sketch12.AttachmentSupport = (doc.getObject("XY_Plane"), [""])
sketch12.MapMode = "FlatFace"
sketch12.AttachmentOffset = App.Placement(Vector(0, 0, 4), App.Rotation())
sketch12.addGeometry(Part.Circle(Vector(-139.7, 149, 0), Vector(0, 0, 1), 1.2), False)
sketch12.addGeometry(Part.Circle(Vector(-113.7, 149, 0), Vector(0, 0, 1), 1.2), False)
sketch12.addGeometry(Part.Circle(Vector(-113.7, 84, 0), Vector(0, 0, 1), 1.2), False)
sketch12.addGeometry(Part.Circle(Vector(-139.7, 84, 0), Vector(0, 0, 1), 1.2), False)
sketch12.addConstraint(Sketcher.Constraint("Equal", 0, 1))
sketch12.addConstraint(Sketcher.Constraint("Equal", 1, 2))
sketch12.addConstraint(Sketcher.Constraint("Equal", 2, 3))
sketch12.addConstraint(Sketcher.Constraint("Horizontal", 0, 3, 1, 3))
sketch12.addConstraint(Sketcher.Constraint("Horizontal", 2, 3, 3, 3))
sketch12.addConstraint(Sketcher.Constraint("Vertical", 1, 3, 2, 3))
sketch12.addConstraint(Sketcher.Constraint("Vertical", 0, 3, 3, 3))
sketch12.addConstraint(Sketcher.Constraint("Diameter", 0, Q("2.4 mm")))
sketch12.addConstraint(Sketcher.Constraint("DistanceY", -1, 1, 0, 3, Q("149 mm")))
sketch12.addConstraint(Sketcher.Constraint("DistanceY", -1, 1, 2, 3, Q("84 mm")))
sketch12.addConstraint(Sketcher.Constraint("DistanceX", 0, 3, 1, 3, Q("26 mm")))
sketch12.addConstraint(Sketcher.Constraint("DistanceX", 0, 3, -1, 1, Q("139.748737 mm")))
sketch12.setExpression("Constraints[7]", "Params.sketch12_diameter")
pocket11 = body.newObject("PartDesign::Pocket", "Pocket010")
pocket11.Profile = sketch12
pocket11.Type = "ThroughAll"

sketch13 = body.newObject("Sketcher::SketchObject", "Sketch012")
sketch13.AttachmentSupport = (doc.getObject("XY_Plane"), [""])
sketch13.MapMode = "FlatFace"
sketch13.AttachmentOffset = App.Placement(Vector(0, 0, 4), App.Rotation())
sketch13.addGeometry(Part.Circle(Vector(-155, 194.5, 0), Vector(0, 0, 1), 1.8), False)
sketch13.addGeometry(Part.Circle(Vector(-155, 221.5, 0), Vector(0, 0, 1), 1.8), False)
sketch13.addConstraint(Sketcher.Constraint("Equal", 0, 1))
sketch13.addConstraint(Sketcher.Constraint("Vertical", 0, 3, 1, 3))
sketch13.addConstraint(Sketcher.Constraint("Diameter", 0, Q("3.5 mm")))
sketch13.addConstraint(Sketcher.Constraint("DistanceX", 0, 3, -1, 1, Q("155 mm")))
sketch13.addConstraint(Sketcher.Constraint("DistanceY", 0, 3, 1, 3, Q("27 mm")))
sketch13.addConstraint(Sketcher.Constraint("DistanceY", -1, 1, 0, 3, Q("194.497475 mm")))
sketch13.setExpression("Constraints[2]", "Params.sketch13_diameter")
pocket12 = body.newObject("PartDesign::Pocket", "Pocket011")
pocket12.Profile = sketch13
pocket12.setExpression("Length", "Params.pocket12_length")

sketch14 = body.newObject("Sketcher::SketchObject", "Sketch013")
sketch14.AttachmentSupport = (doc.getObject("XY_Plane"), [""])
sketch14.MapMode = "FlatFace"
sketch14.AttachmentOffset = App.Placement(Vector(0, 0, 4), App.Rotation())
sketch14.addGeometry(Part.Circle(Vector(-145, 286.5, 0), Vector(0, 0, 1), 2), False)
sketch14.addGeometry(Part.Circle(Vector(-165, 266.5, 0), Vector(0, 0, 1), 2), False)
sketch14.addGeometry(Part.Circle(Vector(-35, 266.5, 0), Vector(0, 0, 1), 2), False)
sketch14.addGeometry(Part.Circle(Vector(-55, 286.5, 0), Vector(0, 0, 1), 2), False)
sketch14.addGeometry(Part.Circle(Vector(-35, 43, 0), Vector(0, 0, 1), 2), False)
sketch14.addGeometry(Part.Circle(Vector(-55, 23, 0), Vector(0, 0, 1), 2), False)
sketch14.addGeometry(Part.Circle(Vector(-165, 43, 0), Vector(0, 0, 1), 2), False)
sketch14.addGeometry(Part.Circle(Vector(-145, 23, 0), Vector(0, 0, 1), 2), False)
sketch14.addConstraint(Sketcher.Constraint("Equal", 0, 1))
sketch14.addConstraint(Sketcher.Constraint("Equal", 1, 2))
sketch14.addConstraint(Sketcher.Constraint("Equal", 2, 3))
sketch14.addConstraint(Sketcher.Constraint("Equal", 3, 4))
sketch14.addConstraint(Sketcher.Constraint("Equal", 4, 5))
sketch14.addConstraint(Sketcher.Constraint("Equal", 5, 6))
sketch14.addConstraint(Sketcher.Constraint("Equal", 6, 7))
sketch14.addConstraint(Sketcher.Constraint("Horizontal", 1, 3, 2, 3))
sketch14.addConstraint(Sketcher.Constraint("Horizontal", 0, 3, 3, 3))
sketch14.addConstraint(Sketcher.Constraint("Horizontal", 4, 3, 6, 3))
sketch14.addConstraint(Sketcher.Constraint("Horizontal", 5, 3, 7, 3))
sketch14.addConstraint(Sketcher.Constraint("Vertical", 2, 3, 4, 3))
sketch14.addConstraint(Sketcher.Constraint("Vertical", 3, 3, 5, 3))
sketch14.addConstraint(Sketcher.Constraint("Vertical", 1, 3, 6, 3))
sketch14.addConstraint(Sketcher.Constraint("Vertical", 0, 3, 7, 3))
sketch14.addConstraint(Sketcher.Constraint("Diameter", 0, Q("4 mm")))
sketch14.addConstraint(Sketcher.Constraint("DistanceX", 0, 3, -1, 1, Q("145 mm")))
sketch14.addConstraint(Sketcher.Constraint("DistanceX", 1, 3, -1, 1, Q("165 mm")))
sketch14.addConstraint(Sketcher.Constraint("DistanceX", 2, 3, -1, 1, Q("35 mm")))
sketch14.addConstraint(Sketcher.Constraint("DistanceX", 3, 3, -1, 1, Q("55 mm")))
sketch14.addConstraint(Sketcher.Constraint("DistanceY", -1, 1, 4, 3, Q("43 mm")))
sketch14.addConstraint(Sketcher.Constraint("DistanceY", -1, 1, 5, 3, Q("23 mm")))
sketch14.addConstraint(Sketcher.Constraint("DistanceY", 1, 3, 0, 3, Q("20 mm")))
sketch14.addConstraint(Sketcher.Constraint("DistanceY", -1, 1, 0, 3, Q("286.497475 mm")))
sketch14.setExpression("Constraints[15]", "Params.sketch14_diameter")
pocket13 = body.newObject("PartDesign::Pocket", "Pocket012")
pocket13.Profile = sketch14
pocket13.Type = "ThroughAll"

sketch15 = body.newObject("Sketcher::SketchObject", "Sketch014")
sketch15.AttachmentSupport = (doc.getObject("XY_Plane"), [""])
sketch15.MapMode = "FlatFace"
add_polygon(sketch15, [(22, 34), (22, 3), (-46, 3), (-46, 34)])
add_polygon(sketch15, [(-154, 34), (-154, 3), (-222, 3), (-222, 34)])
add_polygon(sketch15, [(-154, 306), (-154, 275), (-222, 275), (-222, 306)])
add_polygon(sketch15, [(22, 306), (22, 275), (-46, 275), (-46, 306)])
sketch15.addConstraint(Sketcher.Constraint("Vertical", 0))
sketch15.addConstraint(Sketcher.Constraint("Horizontal", 1))
sketch15.addConstraint(Sketcher.Constraint("Vertical", 2))
sketch15.addConstraint(Sketcher.Constraint("Horizontal", 3))
sketch15.addConstraint(Sketcher.Constraint("Vertical", 4))
sketch15.addConstraint(Sketcher.Constraint("Horizontal", 5))
sketch15.addConstraint(Sketcher.Constraint("Vertical", 6))
sketch15.addConstraint(Sketcher.Constraint("Horizontal", 7))
sketch15.addConstraint(Sketcher.Constraint("Vertical", 8))
sketch15.addConstraint(Sketcher.Constraint("Horizontal", 9))
sketch15.addConstraint(Sketcher.Constraint("Vertical", 10))
sketch15.addConstraint(Sketcher.Constraint("Horizontal", 11))
sketch15.addConstraint(Sketcher.Constraint("Vertical", 12))
sketch15.addConstraint(Sketcher.Constraint("Horizontal", 13))
sketch15.addConstraint(Sketcher.Constraint("Vertical", 14))
sketch15.addConstraint(Sketcher.Constraint("Horizontal", 15))
sketch15.addConstraint(Sketcher.Constraint("Horizontal", 1, 2, 4, 2))
sketch15.addConstraint(Sketcher.Constraint("Horizontal", 3, 2, 6, 2))
sketch15.addConstraint(Sketcher.Constraint("Horizontal", 9, 2, 12, 2))
sketch15.addConstraint(Sketcher.Constraint("Horizontal", 11, 2, 14, 2))
sketch15.addConstraint(Sketcher.Constraint("Vertical", 7, 2, 8, 2))
sketch15.addConstraint(Sketcher.Constraint("Vertical", 6, 2, 9, 2))
sketch15.addConstraint(Sketcher.Constraint("Vertical", 3, 2, 12, 2))
sketch15.addConstraint(Sketcher.Constraint("Vertical", 2, 2, 13, 2))
sketch15.addConstraint(Sketcher.Constraint("Equal", 3, 5))
sketch15.addConstraint(Sketcher.Constraint("Equal", 6, 8))
sketch15.addConstraint(Sketcher.Constraint("DistanceY", 0, 2, 0, 1, Q("31 mm")))
sketch15.addConstraint(Sketcher.Constraint("DistanceY", -1, 1, 0, 2, Q("3 mm")))
sketch15.addConstraint(Sketcher.Constraint("DistanceX", 1, 2, -1, 1, Q("46 mm")))
sketch15.addConstraint(Sketcher.Constraint("DistanceX", 4, 2, -1, 1, Q("154 mm")))
sketch15.addConstraint(Sketcher.Constraint("DistanceX", 1, 2, 1, 1, Q("67.748737 mm")))
sketch15.addConstraint(Sketcher.Constraint("DistanceY", -1, 1, 8, 2, Q("275.497475 mm")))
sketch15.setExpression("Constraints[42]", "Params.sketch15_height")
pocket14 = body.newObject("PartDesign::Pocket", "Pocket013")
pocket14.Profile = sketch15
pocket14.Type = "ThroughAll"
pocket14.Reversed = True
doc.recompute()

fillet2 = body.newObject("PartDesign::Fillet", "Fillet001")
fillet2.Base = (pocket14, edges_at(pocket14, [
    (21.749, 275.497, 2),
    (-46, 306.497, 2),
    (-221.749, 275.497, 2),
    (-154, 306.497, 2),
    (-221.749, 34, 2),
    (-154, 3, 2),
    (21.749, 34, 2),
    (-46, 3, 2),
]))
fillet2.setExpression("Radius", "Params.fillet2_radius")

doc.recompute()
